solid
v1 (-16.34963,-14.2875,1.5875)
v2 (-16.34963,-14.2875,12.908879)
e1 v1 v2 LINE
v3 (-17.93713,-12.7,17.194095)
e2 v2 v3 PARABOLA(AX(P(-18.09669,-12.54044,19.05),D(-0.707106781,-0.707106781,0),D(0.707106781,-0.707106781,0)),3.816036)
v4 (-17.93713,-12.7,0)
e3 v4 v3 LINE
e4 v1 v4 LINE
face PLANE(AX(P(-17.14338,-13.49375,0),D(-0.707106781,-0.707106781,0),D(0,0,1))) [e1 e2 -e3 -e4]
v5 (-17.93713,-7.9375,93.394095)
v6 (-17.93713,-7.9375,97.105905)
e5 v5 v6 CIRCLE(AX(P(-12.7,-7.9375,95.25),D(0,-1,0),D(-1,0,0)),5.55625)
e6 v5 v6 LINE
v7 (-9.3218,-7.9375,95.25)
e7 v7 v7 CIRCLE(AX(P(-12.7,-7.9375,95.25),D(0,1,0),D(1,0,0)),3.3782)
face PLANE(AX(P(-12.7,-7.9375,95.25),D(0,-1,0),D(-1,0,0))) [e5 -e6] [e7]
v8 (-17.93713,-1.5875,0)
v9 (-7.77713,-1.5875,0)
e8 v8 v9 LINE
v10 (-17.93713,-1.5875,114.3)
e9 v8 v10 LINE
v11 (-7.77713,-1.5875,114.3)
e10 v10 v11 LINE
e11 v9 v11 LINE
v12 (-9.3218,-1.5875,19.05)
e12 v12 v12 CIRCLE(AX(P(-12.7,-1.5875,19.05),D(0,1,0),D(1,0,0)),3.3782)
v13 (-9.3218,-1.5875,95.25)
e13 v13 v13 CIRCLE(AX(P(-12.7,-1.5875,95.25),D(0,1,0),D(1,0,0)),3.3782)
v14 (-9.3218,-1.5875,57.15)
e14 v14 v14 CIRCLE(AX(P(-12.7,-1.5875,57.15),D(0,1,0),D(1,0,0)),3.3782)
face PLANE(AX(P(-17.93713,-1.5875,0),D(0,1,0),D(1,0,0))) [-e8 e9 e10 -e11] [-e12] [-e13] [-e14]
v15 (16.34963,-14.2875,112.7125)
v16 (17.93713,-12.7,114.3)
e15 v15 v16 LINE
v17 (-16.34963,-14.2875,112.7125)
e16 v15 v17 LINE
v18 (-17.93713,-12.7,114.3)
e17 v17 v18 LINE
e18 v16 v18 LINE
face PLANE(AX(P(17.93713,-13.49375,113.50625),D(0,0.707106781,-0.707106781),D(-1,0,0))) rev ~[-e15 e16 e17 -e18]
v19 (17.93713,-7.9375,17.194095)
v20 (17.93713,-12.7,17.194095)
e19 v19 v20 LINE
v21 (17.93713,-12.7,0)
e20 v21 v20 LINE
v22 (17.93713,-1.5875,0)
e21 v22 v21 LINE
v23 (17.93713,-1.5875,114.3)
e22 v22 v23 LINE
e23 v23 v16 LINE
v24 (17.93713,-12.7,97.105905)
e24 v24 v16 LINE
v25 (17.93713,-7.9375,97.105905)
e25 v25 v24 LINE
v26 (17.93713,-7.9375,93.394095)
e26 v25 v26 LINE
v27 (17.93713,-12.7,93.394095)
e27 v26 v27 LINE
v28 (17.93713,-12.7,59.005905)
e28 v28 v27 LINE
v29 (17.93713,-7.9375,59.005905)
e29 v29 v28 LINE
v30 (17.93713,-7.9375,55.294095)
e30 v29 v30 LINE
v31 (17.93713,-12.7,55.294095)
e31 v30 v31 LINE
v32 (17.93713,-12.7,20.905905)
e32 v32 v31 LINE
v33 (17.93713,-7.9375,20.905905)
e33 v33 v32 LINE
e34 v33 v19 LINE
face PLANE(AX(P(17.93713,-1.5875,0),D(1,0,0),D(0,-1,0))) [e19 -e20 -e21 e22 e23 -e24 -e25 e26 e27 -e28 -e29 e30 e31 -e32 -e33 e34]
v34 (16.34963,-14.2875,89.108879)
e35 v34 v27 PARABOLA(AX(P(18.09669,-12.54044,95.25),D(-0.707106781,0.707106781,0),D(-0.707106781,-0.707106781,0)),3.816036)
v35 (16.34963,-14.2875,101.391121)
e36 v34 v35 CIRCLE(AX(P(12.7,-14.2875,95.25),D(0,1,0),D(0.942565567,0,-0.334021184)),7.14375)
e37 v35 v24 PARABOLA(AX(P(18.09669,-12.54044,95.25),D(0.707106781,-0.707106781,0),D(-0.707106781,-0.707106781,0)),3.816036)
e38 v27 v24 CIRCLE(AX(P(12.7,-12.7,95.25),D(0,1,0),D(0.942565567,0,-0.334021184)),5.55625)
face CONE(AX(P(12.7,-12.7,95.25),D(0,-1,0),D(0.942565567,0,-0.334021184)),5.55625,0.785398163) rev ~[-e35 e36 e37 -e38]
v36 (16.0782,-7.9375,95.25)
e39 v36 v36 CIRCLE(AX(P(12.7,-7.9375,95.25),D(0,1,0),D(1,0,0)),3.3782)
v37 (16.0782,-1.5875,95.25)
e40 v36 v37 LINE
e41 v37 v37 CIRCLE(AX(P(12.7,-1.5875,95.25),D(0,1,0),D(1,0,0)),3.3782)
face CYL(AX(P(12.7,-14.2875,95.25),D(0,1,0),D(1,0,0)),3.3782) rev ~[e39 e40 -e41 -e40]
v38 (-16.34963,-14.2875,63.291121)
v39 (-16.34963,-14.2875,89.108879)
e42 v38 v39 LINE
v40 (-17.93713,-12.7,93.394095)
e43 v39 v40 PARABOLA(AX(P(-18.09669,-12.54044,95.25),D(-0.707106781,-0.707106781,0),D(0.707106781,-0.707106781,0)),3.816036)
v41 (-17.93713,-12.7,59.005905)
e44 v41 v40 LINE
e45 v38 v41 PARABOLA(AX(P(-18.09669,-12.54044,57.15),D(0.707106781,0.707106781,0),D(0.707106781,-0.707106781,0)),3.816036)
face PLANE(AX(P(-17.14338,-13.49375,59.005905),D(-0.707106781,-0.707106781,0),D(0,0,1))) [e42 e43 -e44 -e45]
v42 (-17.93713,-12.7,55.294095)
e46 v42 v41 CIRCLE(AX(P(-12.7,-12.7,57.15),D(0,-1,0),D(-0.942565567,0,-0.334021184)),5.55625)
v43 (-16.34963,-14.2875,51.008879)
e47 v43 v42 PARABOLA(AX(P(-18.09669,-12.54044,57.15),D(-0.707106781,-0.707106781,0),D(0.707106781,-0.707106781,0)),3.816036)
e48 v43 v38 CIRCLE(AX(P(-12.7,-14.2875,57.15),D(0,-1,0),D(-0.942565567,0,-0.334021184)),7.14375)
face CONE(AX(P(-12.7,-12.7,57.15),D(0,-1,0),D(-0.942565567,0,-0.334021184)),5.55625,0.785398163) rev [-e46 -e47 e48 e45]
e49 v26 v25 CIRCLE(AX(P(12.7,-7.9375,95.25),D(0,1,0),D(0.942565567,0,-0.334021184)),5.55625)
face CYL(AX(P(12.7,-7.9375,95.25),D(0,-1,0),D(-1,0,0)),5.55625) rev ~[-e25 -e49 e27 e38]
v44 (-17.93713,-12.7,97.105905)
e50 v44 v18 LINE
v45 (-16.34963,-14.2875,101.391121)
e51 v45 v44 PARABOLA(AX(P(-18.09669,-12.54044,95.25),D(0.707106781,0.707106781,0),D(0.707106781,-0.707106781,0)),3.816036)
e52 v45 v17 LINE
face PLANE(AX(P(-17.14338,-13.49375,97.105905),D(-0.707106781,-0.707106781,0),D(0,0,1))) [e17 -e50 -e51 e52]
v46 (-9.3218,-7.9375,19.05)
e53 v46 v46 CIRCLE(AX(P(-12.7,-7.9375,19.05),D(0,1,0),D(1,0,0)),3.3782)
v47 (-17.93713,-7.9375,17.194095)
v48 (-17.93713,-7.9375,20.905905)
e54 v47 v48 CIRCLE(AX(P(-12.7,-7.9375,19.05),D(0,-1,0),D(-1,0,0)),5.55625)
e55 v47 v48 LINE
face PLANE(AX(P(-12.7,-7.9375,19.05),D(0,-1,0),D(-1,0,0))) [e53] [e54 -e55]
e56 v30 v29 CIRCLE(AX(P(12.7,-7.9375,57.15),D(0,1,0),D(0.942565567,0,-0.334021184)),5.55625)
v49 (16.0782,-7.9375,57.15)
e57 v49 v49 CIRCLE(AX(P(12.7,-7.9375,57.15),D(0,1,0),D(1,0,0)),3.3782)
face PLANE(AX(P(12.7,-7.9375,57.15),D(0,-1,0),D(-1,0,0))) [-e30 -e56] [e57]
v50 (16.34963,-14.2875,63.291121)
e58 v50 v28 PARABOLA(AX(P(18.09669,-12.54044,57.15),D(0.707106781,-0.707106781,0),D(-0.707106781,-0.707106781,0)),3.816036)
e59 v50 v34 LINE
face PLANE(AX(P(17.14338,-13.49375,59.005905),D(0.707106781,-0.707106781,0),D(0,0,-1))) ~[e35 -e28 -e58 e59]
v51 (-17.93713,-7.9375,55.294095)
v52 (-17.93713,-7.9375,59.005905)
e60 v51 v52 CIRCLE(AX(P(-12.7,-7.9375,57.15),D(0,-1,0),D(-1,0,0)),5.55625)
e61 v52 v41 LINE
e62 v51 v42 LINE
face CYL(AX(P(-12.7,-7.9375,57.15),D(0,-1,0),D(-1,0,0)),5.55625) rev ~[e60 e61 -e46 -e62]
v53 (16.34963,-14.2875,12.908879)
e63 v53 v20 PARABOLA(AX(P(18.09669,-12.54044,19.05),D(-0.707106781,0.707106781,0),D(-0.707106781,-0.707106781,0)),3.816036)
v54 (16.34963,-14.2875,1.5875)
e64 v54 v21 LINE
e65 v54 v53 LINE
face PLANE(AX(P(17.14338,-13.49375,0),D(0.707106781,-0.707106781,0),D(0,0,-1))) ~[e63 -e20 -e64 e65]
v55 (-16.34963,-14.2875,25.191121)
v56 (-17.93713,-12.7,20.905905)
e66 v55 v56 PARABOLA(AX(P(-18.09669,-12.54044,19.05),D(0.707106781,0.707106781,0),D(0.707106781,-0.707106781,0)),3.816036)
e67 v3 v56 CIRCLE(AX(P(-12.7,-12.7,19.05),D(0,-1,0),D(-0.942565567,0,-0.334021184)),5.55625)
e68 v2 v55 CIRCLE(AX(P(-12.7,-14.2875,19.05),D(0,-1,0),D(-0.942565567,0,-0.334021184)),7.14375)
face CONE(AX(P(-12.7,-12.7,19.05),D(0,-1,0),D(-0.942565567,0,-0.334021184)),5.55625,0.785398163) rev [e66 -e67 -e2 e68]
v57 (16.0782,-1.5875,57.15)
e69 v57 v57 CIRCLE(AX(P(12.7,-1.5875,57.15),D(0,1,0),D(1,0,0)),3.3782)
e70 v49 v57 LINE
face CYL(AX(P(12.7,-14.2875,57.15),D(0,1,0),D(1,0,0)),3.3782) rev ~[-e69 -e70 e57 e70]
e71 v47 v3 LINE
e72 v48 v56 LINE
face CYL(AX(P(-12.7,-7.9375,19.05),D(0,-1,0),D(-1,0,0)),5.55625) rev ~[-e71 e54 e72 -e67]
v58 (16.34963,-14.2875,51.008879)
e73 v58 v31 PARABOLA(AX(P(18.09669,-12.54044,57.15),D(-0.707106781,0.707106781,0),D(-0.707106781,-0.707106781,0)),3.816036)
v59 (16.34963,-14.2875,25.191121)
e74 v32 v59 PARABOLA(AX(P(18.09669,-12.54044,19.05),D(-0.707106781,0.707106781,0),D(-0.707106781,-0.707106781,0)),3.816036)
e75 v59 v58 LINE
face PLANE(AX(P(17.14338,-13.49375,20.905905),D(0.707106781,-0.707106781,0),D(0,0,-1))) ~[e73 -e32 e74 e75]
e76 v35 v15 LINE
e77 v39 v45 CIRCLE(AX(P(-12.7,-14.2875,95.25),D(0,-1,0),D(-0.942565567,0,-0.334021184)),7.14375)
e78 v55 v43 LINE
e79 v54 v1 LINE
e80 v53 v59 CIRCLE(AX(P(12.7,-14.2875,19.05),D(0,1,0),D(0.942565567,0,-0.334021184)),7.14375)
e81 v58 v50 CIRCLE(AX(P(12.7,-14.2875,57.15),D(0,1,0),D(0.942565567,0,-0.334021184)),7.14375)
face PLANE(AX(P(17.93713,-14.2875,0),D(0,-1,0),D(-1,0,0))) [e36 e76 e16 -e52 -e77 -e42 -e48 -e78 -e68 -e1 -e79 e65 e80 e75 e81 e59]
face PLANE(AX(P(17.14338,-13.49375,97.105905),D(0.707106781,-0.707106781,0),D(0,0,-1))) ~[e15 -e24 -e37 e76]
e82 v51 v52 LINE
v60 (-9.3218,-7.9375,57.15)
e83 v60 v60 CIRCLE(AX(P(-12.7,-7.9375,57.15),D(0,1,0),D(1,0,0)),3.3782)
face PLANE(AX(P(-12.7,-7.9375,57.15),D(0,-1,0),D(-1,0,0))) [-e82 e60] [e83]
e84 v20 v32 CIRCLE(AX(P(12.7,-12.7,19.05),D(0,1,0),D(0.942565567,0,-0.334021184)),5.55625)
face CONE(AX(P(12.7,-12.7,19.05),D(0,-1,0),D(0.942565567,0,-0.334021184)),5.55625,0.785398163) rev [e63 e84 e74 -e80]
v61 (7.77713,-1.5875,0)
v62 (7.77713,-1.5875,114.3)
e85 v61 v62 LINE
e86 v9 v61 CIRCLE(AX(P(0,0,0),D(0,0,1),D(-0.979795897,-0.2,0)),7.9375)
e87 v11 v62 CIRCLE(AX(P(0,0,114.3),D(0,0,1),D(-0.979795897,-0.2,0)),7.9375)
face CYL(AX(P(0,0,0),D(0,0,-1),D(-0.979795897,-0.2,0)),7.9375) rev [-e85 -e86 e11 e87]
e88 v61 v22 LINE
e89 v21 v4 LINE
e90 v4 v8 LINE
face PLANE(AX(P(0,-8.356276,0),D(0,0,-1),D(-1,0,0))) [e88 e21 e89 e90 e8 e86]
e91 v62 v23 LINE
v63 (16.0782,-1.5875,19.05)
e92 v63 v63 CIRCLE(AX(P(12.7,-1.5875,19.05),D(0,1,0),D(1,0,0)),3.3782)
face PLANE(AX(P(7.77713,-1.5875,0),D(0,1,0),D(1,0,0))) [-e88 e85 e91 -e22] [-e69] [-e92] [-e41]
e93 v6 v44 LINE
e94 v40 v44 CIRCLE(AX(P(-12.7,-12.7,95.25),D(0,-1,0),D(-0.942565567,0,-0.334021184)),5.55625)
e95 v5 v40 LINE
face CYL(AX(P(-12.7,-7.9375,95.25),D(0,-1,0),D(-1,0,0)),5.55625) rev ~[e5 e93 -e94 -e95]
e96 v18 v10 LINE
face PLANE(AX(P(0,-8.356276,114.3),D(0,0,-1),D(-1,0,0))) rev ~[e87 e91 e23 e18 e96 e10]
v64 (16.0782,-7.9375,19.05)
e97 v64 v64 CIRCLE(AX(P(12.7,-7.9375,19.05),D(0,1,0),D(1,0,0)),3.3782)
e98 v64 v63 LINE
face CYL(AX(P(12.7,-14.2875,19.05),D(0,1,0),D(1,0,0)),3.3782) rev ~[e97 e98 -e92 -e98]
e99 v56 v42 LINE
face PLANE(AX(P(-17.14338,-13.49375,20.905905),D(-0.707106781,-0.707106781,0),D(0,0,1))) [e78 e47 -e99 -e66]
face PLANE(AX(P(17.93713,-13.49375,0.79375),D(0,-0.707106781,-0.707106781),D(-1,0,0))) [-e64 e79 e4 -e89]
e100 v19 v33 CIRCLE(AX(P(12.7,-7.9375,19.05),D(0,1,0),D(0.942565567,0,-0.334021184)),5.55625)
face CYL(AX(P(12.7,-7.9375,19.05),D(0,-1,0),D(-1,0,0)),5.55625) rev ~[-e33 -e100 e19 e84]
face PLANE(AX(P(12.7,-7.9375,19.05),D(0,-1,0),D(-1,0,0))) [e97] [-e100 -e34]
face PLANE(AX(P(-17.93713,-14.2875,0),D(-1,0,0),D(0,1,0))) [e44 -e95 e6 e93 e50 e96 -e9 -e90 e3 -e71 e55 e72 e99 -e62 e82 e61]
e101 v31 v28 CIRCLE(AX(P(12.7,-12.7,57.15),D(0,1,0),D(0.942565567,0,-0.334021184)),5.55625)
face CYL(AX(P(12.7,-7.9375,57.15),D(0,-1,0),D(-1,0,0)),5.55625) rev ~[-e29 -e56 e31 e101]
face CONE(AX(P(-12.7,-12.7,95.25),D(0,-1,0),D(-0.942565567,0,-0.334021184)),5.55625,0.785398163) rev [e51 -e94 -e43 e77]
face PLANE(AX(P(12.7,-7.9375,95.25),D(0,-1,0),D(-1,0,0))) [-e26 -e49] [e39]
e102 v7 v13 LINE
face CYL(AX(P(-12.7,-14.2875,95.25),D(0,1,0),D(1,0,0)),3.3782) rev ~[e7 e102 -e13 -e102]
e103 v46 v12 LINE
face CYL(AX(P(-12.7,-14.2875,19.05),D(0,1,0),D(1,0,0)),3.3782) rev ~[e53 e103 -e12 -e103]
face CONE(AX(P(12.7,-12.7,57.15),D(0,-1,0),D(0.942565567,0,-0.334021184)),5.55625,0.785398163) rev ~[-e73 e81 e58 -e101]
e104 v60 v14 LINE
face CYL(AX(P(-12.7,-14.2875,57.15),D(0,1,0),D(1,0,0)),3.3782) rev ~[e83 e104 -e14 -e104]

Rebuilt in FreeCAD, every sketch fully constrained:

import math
import FreeCAD as App
import Part
import Sketcher
from FreeCAD import Vector
Q = App.Units.Quantity


def edges_at(feature, points):
    """Names of the edges that pass closest to the given points."""
    edges = feature.Shape.Edges
    near = lambda p: min(range(len(edges)), key=lambda i: edges[i].distToShape(Part.Vertex(*p))[0])
    return sorted({f"Edge{near(p) + 1}" for p in points})

doc = App.newDocument("Part")
body = doc.addObject("PartDesign::Body", "Body")

sketch1 = doc.addObject("Sketcher::SketchObject", "Sketch")
body.addObject(sketch1)
sketch1.AttachmentSupport = (doc.XY_Plane, [""])
sketch1.MapMode = "FlatFace"
sketch1.addGeometry([
    Part.LineSegment(Vector(18, -2, 0), Vector(8, -2, 0)),
    Part.ArcOfCircle(Part.Circle(Vector(0, 0, 0), Vector(0, 0, 1), 8), math.radians(-168), math.radians(-12)),
    Part.LineSegment(Vector(-8, -2, 0), Vector(-18, -2, 0)),
    Part.LineSegment(Vector(-18, -2, 0), Vector(-18, -14, 0)),
    Part.LineSegment(Vector(-18, -14, 0), Vector(18, -14, 0)),
    Part.LineSegment(Vector(18, -14, 0), Vector(18, -2, 0)),
], False)
sketch1.addConstraint([
    Sketcher.Constraint("Coincident", 0, 2, 1, 2),
    Sketcher.Constraint("Coincident", 1, 1, 2, 1),
    Sketcher.Constraint("Coincident", 2, 2, 3, 1),
    Sketcher.Constraint("Coincident", 3, 2, 4, 1),
    Sketcher.Constraint("Coincident", 4, 2, 5, 1),
    Sketcher.Constraint("Coincident", 5, 2, 0, 1),
    Sketcher.Constraint("Horizontal", 0),
    Sketcher.Constraint("Horizontal", 2),
    Sketcher.Constraint("Vertical", 3),
    Sketcher.Constraint("Horizontal", 4),
    Sketcher.Constraint("Vertical", 5),
    Sketcher.Constraint("Coincident", 1, 3, -1, 1),
    Sketcher.Constraint("Symmetric", 2, 2, 5, 2, -2),
    Sketcher.Constraint("DistanceX", 0, 2, 0, 1, Q("0.4 in")),
    Sketcher.Constraint("DistanceY", 3, 2, 3, 1, Q("0.5 in")),
    Sketcher.Constraint("Radius", 1, Q("0.3125 in")),
    Sketcher.Constraint("DistanceY", 0, 2, -1, 1, Q("0.0625 in")),
])
pad1 = doc.addObject("PartDesign::Pad", "Pad")
body.addObject(pad1)
pad1.Profile = sketch1
pad1.Length = Q("4.5 in")

sketch2 = doc.addObject("Sketcher::SketchObject", "Sketch001")
body.addObject(sketch2)
sketch2.AttachmentSupport = (doc.XZ_Plane, [""])
sketch2.MapMode = "FlatFace"
sketch2.AttachmentOffset = App.Placement(Vector(0, 0, 0.5625 * 25.4), App.Rotation())
sketch2.addGeometry([
    Part.Circle(Vector(-12.7, 19.1, 0), Vector(0, 0, 1), 3.4),
    Part.Circle(Vector(-12.7, 57.1, 0), Vector(0, 0, 1), 3.4),
    Part.Circle(Vector(-12.7, 95.2, 0), Vector(0, 0, 1), 3.4),
    Part.Circle(Vector(12.7, 95.2, 0), Vector(0, 0, 1), 3.4),
    Part.Circle(Vector(12.7, 57.1, 0), Vector(0, 0, 1), 3.4),
    Part.Circle(Vector(12.7, 19.1, 0), Vector(0, 0, 1), 3.4),
], False)
sketch2.addConstraint([
    Sketcher.Constraint("Equal", 0, 1),
    Sketcher.Constraint("Equal", 1, 2),
    Sketcher.Constraint("Equal", 2, 3),
    Sketcher.Constraint("Equal", 3, 4),
    Sketcher.Constraint("Equal", 4, 5),
    Sketcher.Constraint("Symmetric", 2, 3, 3, 3, -2),
    Sketcher.Constraint("Symmetric", 1, 3, 4, 3, -2),
    Sketcher.Constraint("Symmetric", 0, 3, 5, 3, -2),
    Sketcher.Constraint("Vertical", 0, 3, 1, 3),
    Sketcher.Constraint("Vertical", 1, 3, 2, 3),
    Sketcher.Constraint("Diameter", 0, Q("0.266 in")),
    Sketcher.Constraint("DistanceY", 0, 3, 2, 3, Q("3 in")),
    Sketcher.Constraint("DistanceX", 2, 3, 3, 3, Q("1 in")),
    Sketcher.Constraint("DistanceY", 0, 3, 1, 3, Q("1.5 in")),
    Sketcher.Constraint("DistanceY", -1, 1, 0, 3, Q("0.75 in")),
])
doc.recompute()
hole = doc.addObject("PartDesign::Hole", "Hole")
body.addObject(hole)
hole.Profile = sketch2
hole.ThreadType = "None"
hole.Diameter = Q("0.266 in")
hole.DepthType = "ThroughAll"
hole.HoleCutType = "Counterbore"
hole.HoleCutDiameter = Q("0.4375 in")
hole.HoleCutDepth = Q("0.25 in")
doc.recompute()

chamfer = doc.addObject("PartDesign::Chamfer", "Chamfer")
body.addObject(chamfer)
chamfer.Base = (hole, edges_at(hole, [
    (17.937, -14.287, 105.703),
    (-17.937, -14.287, 105.703),
    (17.937, -14.287, 8.597),
    (7.144, -14.287, 19.05),
    (17.937, -14.287, 38.1),
    (7.144, -14.287, 57.15),
    (0, -14.287, 114.3),
    (17.937, -14.287, 76.2),
    (7.144, -14.287, 95.25),
    (-17.937, -14.287, 76.2),
    (-7.144, -14.287, 95.25),
    (-17.937, -14.287, 38.1),
    (-7.144, -14.287, 57.15),
    (0, -14.287, 0),
    (-17.937, -14.287, 8.597),
    (-7.144, -14.287, 19.05),
]))
chamfer.Size = Q("0.0625 in")

doc.recompute()
